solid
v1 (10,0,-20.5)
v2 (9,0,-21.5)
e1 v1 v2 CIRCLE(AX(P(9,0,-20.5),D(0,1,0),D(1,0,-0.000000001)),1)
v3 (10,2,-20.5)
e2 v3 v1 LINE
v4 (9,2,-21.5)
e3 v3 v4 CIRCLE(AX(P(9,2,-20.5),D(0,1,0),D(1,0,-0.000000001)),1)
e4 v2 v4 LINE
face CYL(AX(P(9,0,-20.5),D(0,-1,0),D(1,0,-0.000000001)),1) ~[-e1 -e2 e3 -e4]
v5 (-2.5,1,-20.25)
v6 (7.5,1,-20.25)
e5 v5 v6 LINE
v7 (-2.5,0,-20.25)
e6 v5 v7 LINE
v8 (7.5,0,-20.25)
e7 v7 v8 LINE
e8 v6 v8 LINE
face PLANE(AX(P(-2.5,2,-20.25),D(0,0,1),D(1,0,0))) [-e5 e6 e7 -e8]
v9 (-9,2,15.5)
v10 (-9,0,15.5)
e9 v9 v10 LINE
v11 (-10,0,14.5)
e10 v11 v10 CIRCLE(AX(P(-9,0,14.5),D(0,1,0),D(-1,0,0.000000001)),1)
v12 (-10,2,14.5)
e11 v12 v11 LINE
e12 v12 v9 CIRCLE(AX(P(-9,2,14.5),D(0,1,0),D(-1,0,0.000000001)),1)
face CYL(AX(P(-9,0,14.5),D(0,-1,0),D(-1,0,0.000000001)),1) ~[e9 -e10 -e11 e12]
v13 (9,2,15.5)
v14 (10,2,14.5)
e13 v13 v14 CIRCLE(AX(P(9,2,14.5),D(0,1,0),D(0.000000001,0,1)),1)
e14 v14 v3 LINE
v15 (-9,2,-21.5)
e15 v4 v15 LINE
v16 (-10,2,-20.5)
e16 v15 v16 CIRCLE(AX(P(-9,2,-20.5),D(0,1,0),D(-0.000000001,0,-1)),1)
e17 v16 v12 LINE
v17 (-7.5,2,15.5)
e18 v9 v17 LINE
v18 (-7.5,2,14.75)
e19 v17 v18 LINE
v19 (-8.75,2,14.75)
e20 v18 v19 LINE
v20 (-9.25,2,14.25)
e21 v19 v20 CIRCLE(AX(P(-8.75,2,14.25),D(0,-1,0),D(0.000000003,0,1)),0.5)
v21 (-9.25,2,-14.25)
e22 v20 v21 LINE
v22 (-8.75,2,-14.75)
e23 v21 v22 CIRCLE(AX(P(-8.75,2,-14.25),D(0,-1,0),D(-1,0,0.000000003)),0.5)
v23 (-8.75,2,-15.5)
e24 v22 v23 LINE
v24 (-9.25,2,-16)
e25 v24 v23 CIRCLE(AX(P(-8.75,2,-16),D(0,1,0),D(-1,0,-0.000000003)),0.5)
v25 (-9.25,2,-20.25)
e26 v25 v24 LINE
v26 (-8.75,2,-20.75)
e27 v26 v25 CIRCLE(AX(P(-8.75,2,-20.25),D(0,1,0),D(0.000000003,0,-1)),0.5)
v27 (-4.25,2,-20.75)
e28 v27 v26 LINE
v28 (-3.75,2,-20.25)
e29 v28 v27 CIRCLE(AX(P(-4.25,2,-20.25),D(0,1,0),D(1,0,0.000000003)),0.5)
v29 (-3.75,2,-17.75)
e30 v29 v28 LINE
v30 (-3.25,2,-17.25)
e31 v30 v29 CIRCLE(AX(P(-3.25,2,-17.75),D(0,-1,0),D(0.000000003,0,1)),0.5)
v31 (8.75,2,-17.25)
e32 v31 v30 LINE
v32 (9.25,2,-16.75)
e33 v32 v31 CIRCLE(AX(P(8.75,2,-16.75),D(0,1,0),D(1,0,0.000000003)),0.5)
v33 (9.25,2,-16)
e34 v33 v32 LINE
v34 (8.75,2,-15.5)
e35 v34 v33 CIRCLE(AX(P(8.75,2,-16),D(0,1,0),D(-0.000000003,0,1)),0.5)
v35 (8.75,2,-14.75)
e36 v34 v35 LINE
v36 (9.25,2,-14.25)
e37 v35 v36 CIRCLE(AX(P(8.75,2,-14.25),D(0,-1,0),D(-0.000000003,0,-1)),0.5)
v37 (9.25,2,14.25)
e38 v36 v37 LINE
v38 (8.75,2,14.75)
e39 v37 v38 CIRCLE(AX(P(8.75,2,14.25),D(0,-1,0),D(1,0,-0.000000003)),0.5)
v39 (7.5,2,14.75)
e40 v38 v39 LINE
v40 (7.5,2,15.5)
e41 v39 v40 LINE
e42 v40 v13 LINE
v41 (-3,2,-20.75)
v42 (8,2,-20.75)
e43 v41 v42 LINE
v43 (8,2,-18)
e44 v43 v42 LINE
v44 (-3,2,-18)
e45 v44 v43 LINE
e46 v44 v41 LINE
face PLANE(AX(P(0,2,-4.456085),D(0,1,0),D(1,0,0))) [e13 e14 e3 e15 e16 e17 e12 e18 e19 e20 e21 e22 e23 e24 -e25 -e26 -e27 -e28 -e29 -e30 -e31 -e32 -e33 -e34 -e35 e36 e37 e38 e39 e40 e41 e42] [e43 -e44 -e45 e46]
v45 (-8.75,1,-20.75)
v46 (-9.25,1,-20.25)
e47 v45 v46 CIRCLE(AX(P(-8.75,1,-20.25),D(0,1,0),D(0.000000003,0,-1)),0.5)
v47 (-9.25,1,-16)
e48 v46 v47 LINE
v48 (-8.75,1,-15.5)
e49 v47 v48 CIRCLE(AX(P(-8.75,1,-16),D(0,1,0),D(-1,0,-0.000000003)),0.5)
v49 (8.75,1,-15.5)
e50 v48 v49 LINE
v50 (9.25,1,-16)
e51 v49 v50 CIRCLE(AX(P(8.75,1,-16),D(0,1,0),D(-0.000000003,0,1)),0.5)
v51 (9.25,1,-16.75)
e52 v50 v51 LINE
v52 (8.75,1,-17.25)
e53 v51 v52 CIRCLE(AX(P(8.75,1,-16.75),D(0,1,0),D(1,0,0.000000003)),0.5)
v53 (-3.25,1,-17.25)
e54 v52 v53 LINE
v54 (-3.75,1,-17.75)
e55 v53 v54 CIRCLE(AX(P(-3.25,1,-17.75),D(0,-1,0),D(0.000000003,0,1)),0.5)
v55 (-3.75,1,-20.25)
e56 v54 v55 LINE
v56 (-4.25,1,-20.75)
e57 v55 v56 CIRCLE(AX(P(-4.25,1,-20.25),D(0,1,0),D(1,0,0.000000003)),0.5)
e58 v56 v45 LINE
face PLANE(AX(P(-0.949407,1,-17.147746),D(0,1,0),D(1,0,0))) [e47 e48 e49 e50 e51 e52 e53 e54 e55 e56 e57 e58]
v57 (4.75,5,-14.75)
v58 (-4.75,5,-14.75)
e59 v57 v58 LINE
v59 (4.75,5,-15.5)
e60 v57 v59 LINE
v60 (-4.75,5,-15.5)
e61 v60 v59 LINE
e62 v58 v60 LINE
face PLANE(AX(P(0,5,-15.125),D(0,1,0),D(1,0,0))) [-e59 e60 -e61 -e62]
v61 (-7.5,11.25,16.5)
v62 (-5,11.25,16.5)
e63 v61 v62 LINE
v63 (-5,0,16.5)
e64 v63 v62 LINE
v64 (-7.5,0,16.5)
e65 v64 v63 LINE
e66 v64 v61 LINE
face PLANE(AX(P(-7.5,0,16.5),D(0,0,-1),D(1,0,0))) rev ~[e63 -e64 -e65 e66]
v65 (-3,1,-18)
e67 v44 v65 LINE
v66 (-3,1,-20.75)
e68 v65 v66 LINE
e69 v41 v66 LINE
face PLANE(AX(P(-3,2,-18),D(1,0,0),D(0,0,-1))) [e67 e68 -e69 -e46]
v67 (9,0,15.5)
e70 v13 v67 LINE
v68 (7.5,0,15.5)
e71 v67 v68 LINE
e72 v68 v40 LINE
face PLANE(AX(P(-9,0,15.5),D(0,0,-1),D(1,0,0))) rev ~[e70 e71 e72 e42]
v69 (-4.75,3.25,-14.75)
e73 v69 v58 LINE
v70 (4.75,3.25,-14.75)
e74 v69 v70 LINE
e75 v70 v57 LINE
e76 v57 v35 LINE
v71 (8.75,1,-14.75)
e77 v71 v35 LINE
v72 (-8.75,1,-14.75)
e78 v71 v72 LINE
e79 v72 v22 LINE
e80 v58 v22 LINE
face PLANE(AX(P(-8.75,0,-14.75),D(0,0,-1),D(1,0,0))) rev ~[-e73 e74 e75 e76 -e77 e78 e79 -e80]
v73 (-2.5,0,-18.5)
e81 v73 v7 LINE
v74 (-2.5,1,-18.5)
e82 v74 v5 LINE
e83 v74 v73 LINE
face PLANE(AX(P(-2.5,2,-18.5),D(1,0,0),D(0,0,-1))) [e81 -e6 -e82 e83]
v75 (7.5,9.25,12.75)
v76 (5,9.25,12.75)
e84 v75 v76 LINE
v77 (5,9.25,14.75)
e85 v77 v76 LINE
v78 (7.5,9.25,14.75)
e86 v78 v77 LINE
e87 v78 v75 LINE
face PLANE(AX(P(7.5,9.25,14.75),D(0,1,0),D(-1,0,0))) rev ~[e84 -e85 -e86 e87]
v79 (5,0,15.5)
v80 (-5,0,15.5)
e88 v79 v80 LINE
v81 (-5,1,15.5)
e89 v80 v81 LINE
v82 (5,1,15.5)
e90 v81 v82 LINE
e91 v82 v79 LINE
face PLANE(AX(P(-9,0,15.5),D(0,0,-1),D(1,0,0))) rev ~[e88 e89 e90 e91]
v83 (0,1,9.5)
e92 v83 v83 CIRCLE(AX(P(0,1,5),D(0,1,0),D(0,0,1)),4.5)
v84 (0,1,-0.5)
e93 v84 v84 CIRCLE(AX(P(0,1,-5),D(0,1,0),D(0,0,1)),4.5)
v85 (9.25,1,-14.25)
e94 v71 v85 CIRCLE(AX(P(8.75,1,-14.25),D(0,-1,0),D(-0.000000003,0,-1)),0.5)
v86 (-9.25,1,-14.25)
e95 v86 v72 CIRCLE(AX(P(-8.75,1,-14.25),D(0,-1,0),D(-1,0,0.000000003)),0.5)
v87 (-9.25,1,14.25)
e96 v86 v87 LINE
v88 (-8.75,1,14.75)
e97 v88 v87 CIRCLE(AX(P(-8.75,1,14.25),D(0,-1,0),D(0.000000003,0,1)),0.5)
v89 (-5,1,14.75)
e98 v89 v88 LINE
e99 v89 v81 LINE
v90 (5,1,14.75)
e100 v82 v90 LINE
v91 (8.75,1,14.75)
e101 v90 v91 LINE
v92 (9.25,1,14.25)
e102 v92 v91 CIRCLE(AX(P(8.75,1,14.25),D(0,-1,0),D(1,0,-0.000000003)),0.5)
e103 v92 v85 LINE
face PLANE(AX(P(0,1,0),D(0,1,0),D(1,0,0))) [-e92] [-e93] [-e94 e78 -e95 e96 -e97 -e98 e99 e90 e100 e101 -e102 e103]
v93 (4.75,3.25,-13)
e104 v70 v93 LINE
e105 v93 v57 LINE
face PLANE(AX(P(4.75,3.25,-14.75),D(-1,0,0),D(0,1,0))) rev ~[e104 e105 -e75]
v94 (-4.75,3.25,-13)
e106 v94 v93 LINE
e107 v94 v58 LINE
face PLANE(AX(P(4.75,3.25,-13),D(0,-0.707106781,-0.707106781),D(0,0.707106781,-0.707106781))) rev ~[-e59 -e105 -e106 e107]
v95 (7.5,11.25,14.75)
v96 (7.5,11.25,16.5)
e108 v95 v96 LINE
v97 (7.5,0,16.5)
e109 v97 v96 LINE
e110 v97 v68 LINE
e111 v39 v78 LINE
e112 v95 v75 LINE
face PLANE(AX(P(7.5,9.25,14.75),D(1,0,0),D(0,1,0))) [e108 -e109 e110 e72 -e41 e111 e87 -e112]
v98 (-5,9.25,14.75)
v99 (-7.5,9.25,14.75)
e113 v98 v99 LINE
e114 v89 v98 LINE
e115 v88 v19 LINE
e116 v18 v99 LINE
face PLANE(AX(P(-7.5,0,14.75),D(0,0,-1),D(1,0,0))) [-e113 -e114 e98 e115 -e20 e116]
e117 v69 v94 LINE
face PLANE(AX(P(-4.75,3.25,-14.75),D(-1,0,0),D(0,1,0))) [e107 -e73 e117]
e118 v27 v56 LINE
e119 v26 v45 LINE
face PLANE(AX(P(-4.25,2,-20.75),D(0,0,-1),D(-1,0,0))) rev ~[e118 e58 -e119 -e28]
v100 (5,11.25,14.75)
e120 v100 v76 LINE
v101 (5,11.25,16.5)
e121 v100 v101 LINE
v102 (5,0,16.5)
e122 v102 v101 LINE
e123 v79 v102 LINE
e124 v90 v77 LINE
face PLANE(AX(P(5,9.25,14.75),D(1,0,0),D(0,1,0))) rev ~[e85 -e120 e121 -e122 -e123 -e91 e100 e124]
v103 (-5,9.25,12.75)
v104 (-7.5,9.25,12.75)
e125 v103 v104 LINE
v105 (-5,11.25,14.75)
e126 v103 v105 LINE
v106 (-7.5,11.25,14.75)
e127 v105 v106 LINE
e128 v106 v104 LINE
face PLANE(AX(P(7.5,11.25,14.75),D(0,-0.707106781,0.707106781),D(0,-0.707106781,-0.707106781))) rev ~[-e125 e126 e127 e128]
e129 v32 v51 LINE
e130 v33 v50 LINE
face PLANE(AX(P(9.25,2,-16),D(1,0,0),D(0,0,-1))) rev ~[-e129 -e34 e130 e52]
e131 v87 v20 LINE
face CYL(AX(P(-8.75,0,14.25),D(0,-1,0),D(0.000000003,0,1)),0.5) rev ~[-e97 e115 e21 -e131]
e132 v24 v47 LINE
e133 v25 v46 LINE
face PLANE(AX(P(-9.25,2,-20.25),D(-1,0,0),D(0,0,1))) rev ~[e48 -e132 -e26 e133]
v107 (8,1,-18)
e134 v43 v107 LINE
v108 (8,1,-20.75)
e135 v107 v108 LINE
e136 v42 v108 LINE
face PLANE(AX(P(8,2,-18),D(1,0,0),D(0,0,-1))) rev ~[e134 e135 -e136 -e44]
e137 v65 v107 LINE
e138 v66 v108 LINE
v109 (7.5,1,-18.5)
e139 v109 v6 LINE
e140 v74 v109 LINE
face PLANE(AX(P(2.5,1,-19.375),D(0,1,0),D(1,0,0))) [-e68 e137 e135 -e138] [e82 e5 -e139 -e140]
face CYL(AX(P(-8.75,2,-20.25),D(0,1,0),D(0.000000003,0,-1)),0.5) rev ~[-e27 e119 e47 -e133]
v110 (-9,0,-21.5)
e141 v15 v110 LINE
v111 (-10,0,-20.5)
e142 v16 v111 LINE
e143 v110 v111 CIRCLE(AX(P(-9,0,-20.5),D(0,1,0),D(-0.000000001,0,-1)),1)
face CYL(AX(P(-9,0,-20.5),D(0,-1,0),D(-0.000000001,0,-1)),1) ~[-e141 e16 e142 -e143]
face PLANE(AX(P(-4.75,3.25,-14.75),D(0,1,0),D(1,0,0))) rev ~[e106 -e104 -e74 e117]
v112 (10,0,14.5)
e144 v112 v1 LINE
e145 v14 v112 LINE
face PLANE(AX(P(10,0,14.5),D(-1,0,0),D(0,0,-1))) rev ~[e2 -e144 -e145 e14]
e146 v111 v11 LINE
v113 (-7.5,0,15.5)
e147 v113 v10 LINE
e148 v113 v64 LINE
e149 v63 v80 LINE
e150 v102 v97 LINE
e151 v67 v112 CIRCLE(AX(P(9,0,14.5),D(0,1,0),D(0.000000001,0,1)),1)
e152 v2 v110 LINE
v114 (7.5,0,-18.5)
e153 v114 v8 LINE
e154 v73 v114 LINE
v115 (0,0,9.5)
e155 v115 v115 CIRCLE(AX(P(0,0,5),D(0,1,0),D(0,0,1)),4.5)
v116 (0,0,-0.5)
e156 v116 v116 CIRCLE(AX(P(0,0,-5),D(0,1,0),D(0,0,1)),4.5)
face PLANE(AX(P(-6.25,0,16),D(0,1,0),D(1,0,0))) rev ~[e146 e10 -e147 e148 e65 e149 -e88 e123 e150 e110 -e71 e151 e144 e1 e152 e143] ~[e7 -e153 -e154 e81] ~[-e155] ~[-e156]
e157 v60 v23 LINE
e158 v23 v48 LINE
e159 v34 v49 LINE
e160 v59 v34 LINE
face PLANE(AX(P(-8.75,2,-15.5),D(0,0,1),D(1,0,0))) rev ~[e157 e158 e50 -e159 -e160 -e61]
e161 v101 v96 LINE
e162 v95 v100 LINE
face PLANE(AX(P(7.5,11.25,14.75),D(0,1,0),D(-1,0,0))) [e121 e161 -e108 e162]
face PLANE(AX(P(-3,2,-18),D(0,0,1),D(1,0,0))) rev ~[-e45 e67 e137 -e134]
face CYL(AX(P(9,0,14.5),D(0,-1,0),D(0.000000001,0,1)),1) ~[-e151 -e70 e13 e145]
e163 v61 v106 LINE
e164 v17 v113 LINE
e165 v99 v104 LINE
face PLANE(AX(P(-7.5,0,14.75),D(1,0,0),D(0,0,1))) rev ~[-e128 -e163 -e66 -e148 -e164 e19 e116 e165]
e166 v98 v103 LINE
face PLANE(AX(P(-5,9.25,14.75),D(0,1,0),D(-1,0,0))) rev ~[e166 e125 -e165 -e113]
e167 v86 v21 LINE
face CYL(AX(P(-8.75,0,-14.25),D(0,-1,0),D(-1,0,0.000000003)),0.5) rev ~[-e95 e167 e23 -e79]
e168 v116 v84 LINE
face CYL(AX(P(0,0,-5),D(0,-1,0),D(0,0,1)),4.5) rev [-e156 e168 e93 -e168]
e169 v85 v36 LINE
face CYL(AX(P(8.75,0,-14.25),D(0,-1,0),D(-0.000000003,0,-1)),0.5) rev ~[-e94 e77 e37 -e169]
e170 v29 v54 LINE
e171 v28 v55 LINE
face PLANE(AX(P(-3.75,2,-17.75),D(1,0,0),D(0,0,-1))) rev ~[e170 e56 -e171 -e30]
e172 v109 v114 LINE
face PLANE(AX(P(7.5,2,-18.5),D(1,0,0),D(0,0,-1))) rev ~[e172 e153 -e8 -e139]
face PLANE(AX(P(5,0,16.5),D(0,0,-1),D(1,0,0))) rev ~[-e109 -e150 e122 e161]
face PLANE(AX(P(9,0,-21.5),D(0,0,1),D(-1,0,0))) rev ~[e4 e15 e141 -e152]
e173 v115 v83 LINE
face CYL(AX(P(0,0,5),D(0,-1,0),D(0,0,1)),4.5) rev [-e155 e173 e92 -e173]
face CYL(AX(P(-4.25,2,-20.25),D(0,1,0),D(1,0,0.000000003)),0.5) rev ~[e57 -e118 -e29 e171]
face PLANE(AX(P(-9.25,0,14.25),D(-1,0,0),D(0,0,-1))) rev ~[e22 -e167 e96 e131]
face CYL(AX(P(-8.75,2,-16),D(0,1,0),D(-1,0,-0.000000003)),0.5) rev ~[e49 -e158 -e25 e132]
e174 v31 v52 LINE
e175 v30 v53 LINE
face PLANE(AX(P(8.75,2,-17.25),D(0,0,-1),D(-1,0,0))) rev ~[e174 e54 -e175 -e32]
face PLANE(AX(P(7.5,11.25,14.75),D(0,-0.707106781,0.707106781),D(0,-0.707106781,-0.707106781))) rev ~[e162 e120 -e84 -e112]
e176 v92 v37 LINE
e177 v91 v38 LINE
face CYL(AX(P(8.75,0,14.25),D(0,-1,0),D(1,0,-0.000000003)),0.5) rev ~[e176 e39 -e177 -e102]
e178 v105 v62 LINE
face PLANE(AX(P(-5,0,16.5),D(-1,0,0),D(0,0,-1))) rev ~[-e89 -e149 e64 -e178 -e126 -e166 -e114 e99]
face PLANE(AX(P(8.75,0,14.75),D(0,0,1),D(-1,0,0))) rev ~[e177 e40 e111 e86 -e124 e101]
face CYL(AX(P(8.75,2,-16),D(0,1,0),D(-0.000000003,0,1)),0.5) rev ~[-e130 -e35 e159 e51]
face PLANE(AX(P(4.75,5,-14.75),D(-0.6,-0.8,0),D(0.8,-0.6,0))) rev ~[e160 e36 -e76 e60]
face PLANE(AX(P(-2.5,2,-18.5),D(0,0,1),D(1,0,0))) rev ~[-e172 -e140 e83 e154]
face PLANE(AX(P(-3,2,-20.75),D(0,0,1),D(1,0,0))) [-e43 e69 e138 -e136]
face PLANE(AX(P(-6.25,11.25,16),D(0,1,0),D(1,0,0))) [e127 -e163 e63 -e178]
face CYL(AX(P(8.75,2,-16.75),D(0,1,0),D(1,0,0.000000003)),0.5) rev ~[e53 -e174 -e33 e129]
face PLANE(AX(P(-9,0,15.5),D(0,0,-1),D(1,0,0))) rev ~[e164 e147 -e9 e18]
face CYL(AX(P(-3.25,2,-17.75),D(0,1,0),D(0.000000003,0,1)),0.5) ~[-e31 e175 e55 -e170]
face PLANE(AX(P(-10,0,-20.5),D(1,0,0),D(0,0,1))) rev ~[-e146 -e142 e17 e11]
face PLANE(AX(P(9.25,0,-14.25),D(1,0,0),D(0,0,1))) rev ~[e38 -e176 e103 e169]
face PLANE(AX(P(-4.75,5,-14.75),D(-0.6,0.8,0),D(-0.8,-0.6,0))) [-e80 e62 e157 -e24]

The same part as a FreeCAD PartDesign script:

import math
import FreeCAD as App
import Part
import Sketcher

V = App.Vector
Q = App.Units.Quantity


def add_polygon(sketch, points):
    """Adds a closed chain of lines whose ends are joined by coincident constraints."""
    first, n = sketch.GeometryCount, len(points)
    for a, b in zip(points, points[1:] + points[:1]):
        sketch.addGeometry(Part.LineSegment(App.Vector(*a, 0), App.Vector(*b, 0)), False)
    for i in range(n):
        sketch.addConstraint(Sketcher.Constraint("Coincident", first + i, 2, first + (i + 1) % n, 1))

doc = App.newDocument("Part")
params = doc.addObject("Spreadsheet::Sheet", "Params")
for row, (alias, value) in enumerate([
    ("sketch1_radius", "1 mm"),
    ("sketch1_radius2", "0.5 mm"),
    ("sketch1_width", "18 mm"),
    ("sketch1_height", "35 mm"),
    ("sketch1_width2", "17.5 mm"),
    ("pad1_length", "1 mm"),
    ("sketch2_diameter", "9 mm"),
    ("sketch2_radius", "0.5 mm"),
    ("sketch2_width", "17.5 mm"),
    ("sketch2_height", "28.5 mm"),
    ("pad2_length", "1 mm"),
    ("sketch3_radius", "1 mm"),
    ("sketch3_radius2", "0.5 mm"),
    ("sketch3_width", "18 mm"),
    ("sketch3_height", "35 mm"),
    ("sketch3_width2", "1.5 mm"),
    ("pad3_length", "2 mm"),
    ("sketch4_width", "17.5 mm"),
    ("sketch4_height", "0.75 mm"),
    ("pad4_length", "5 mm"),
    ("sketch5_width", "9.5 mm"),
    ("sketch5_height", "1.75 mm"),
    ("pad5_length", "1.75 mm"),
    ("sketch6_width", "4 mm"),
    ("sketch6_height", "3 mm"),
    ("pocket1_length", "0.75 mm"),
    ("sketch7_width", "2.5 mm"),
    ("sketch7_height", "1.75 mm"),
    ("pad6_length", "11.25 mm"),
    ("sketch8_height", "2 mm"),
    ("sketch8_width", "2.5 mm"),
    ("pad7_length", "2 mm"),
    ("sketch9_width", "2 mm"),
    ("pocket2_length", "15 mm"),
    ("sketch10_width", "1.75 mm"),
    ("pocket3_length", "9.5 mm"),
    ("sketch11_radius", "0.5 mm"),
    ("sketch11_width", "12 mm"),
    ("sketch11_width2", "11 mm"),
    ("sketch11_width3", "10 mm"),
    ("sketch11_width4", "4.5 mm"),
    ("pocket4_length", "1 mm"),
    ("sketch12_width", "10 mm"),
    ("sketch12_height", "1.75 mm"),
    ("pocket5_length", "2 mm"),
], start=1):
    params.set(f"A{row}", alias)
    params.set(f"B{row}", "=" + value)
    params.setAlias(f"B{row}", alias)

body = doc.addObject("PartDesign::Body", "Body")

# Sketch on XZ plane
sketch1 = doc.addObject("Sketcher::SketchObject", "Sketch")
body.addObject(sketch1)
sketch1.AttachmentSupport = (doc.XZ_Plane, [""])
sketch1.MapMode = "FlatFace"
sketch1.addGeometry([
    Part.LineSegment(V(9, -21.5, 0), V(-9, -21.5, 0)),  # 0
    Part.ArcOfCircle(Part.Circle(V(-9, -20.5, 0), V(0, 0, 1), 1), math.radians(-180), math.radians(-90)),  # 1
    Part.LineSegment(V(-10, -20.5, 0), V(-10, 14.5, 0)),  # 2
    Part.ArcOfCircle(Part.Circle(V(-9, 14.5, 0), V(0, 0, 1), 1), math.radians(90), math.radians(180)),  # 3
    Part.LineSegment(V(-9, 15.5, 0), V(9, 15.5, 0)),  # 4
    Part.ArcOfCircle(Part.Circle(V(9, 14.5, 0), V(0, 0, 1), 1), math.radians(0), math.radians(90)),  # 5
    Part.LineSegment(V(10, 14.5, 0), V(10, -20.5, 0)),  # 6
    Part.ArcOfCircle(Part.Circle(V(9, -20.5, 0), V(0, 0, 1), 1), math.radians(-90), math.radians(0)),  # 7
    Part.ArcOfCircle(Part.Circle(V(8.75, -14.25, 0), V(0, 0, 1), 0.5), math.radians(-90), math.radians(0)),  # 8
    Part.LineSegment(V(9.25, -14.25, 0), V(9.25, 14.25, 0)),  # 9
    Part.ArcOfCircle(Part.Circle(V(8.75, 14.25, 0), V(0, 0, 1), 0.5), math.radians(0), math.radians(90)),  # 10
    Part.LineSegment(V(8.75, 14.75, 0), V(-8.75, 14.75, 0)),  # 11
    Part.ArcOfCircle(Part.Circle(V(-8.75, 14.25, 0), V(0, 0, 1), 0.5), math.radians(90), math.radians(180)),  # 12
    Part.LineSegment(V(-9.25, 14.25, 0), V(-9.25, -14.25, 0)),  # 13
    Part.ArcOfCircle(Part.Circle(V(-8.75, -14.25, 0), V(0, 0, 1), 0.5), math.radians(180), math.radians(270)),  # 14
    Part.LineSegment(V(-8.75, -14.75, 0), V(8.75, -14.75, 0)),  # 15
], False)
sketch1.addConstraint([
    Sketcher.Constraint("Tangent", 0, 2, 1, 2),
    Sketcher.Constraint("Tangent", 1, 1, 2, 1),
    Sketcher.Constraint("Tangent", 2, 2, 3, 2),
    Sketcher.Constraint("Tangent", 3, 1, 4, 1),
    Sketcher.Constraint("Tangent", 4, 2, 5, 2),
    Sketcher.Constraint("Tangent", 5, 1, 6, 1),
    Sketcher.Constraint("Tangent", 6, 2, 7, 2),
    Sketcher.Constraint("Tangent", 7, 1, 0, 1),
    Sketcher.Constraint("Tangent", 8, 2, 9, 1),
    Sketcher.Constraint("Tangent", 9, 2, 10, 1),
    Sketcher.Constraint("Tangent", 10, 2, 11, 1),
    Sketcher.Constraint("Tangent", 11, 2, 12, 1),
    Sketcher.Constraint("Tangent", 12, 2, 13, 1),
    Sketcher.Constraint("Tangent", 13, 2, 14, 1),
    Sketcher.Constraint("Tangent", 14, 2, 15, 1),
    Sketcher.Constraint("Tangent", 15, 2, 8, 1),
    Sketcher.Constraint("Horizontal", 0),
    Sketcher.Constraint("Vertical", 2),
    Sketcher.Constraint("Horizontal", 4),
    Sketcher.Constraint("Vertical", 6),
    Sketcher.Constraint("Vertical", 9),
    Sketcher.Constraint("Horizontal", 11),
    Sketcher.Constraint("Vertical", 13),
    Sketcher.Constraint("Horizontal", 15),
    Sketcher.Constraint("Equal", 1, 3),
    Sketcher.Constraint("Equal", 3, 5),
    Sketcher.Constraint("Equal", 5, 7),
    Sketcher.Constraint("Equal", 8, 10),
    Sketcher.Constraint("Equal", 10, 12),
    Sketcher.Constraint("Equal", 12, 14),
    Sketcher.Constraint("Symmetric", 8, 3, 12, 3, -1, 1),
    Sketcher.Constraint("Radius", 1, Q("1 mm")),
    Sketcher.Constraint("Radius", 8, Q("0.5 mm")),
    Sketcher.Constraint("DistanceX", 0, 2, 0, 1, Q("18 mm")),
    Sketcher.Constraint("DistanceY", 2, 1, 2, 2, Q("35 mm")),
    Sketcher.Constraint("DistanceX", 11, 2, 11, 1, Q("17.5 mm")),
    Sketcher.Constraint("DistanceY", 9, 1, 9, 2, Q("28.5 mm")),
    Sketcher.Constraint("DistanceX", 1, 3, -1, 1, Q("9 mm")),
    Sketcher.Constraint("DistanceY", 1, 3, -1, 1, Q("20.5 mm")),
])
sketch1.setExpression("Constraints[31]", "Params.sketch1_radius")
sketch1.setExpression("Constraints[32]", "Params.sketch1_radius2")
sketch1.setExpression("Constraints[33]", "Params.sketch1_width")
sketch1.setExpression("Constraints[34]", "Params.sketch1_height")
sketch1.setExpression("Constraints[35]", "Params.sketch1_width2")
pad1 = doc.addObject("PartDesign::Pad", "Pad")
body.addObject(pad1)
pad1.Profile = sketch1
pad1.setExpression("Length", "Params.pad1_length")
pad1.Reversed = True

# Sketch on XZ plane
sketch2 = doc.addObject("Sketcher::SketchObject", "Sketch001")
body.addObject(sketch2)
sketch2.AttachmentSupport = (doc.XZ_Plane, [""])
sketch2.MapMode = "FlatFace"
sketch2.addGeometry([
    Part.LineSegment(V(-9.25, -14.25, 0), V(-9.25, 14.25, 0)),  # 0
    Part.ArcOfCircle(Part.Circle(V(-8.75, 14.25, 0), V(0, 0, 1), 0.5), math.radians(90), math.radians(180)),  # 1
    Part.LineSegment(V(-8.75, 14.75, 0), V(8.75, 14.75, 0)),  # 2
    Part.ArcOfCircle(Part.Circle(V(8.75, 14.25, 0), V(0, 0, 1), 0.5), math.radians(0), math.radians(90)),  # 3
    Part.LineSegment(V(9.25, 14.25, 0), V(9.25, -14.25, 0)),  # 4
    Part.ArcOfCircle(Part.Circle(V(8.75, -14.25, 0), V(0, 0, 1), 0.5), math.radians(-90), math.radians(0)),  # 5
    Part.LineSegment(V(8.75, -14.75, 0), V(-8.75, -14.75, 0)),  # 6
    Part.ArcOfCircle(Part.Circle(V(-8.75, -14.25, 0), V(0, 0, 1), 0.5), math.radians(180), math.radians(270)),  # 7
    Part.Circle(V(0, 5, 0), V(0, 0, 1), 4.5),  # 8
    Part.Circle(V(0, -5, 0), V(0, 0, 1), 4.5),  # 9
], False)
sketch2.addConstraint([
    Sketcher.Constraint("Tangent", 0, 2, 1, 2),
    Sketcher.Constraint("Tangent", 1, 1, 2, 1),
    Sketcher.Constraint("Tangent", 2, 2, 3, 2),
    Sketcher.Constraint("Tangent", 3, 1, 4, 1),
    Sketcher.Constraint("Tangent", 4, 2, 5, 2),
    Sketcher.Constraint("Tangent", 5, 1, 6, 1),
    Sketcher.Constraint("Tangent", 6, 2, 7, 2),
    Sketcher.Constraint("Tangent", 7, 1, 0, 1),
    Sketcher.Constraint("Vertical", 0),
    Sketcher.Constraint("Horizontal", 2),
    Sketcher.Constraint("Vertical", 4),
    Sketcher.Constraint("Horizontal", 6),
    Sketcher.Constraint("Equal", 1, 3),
    Sketcher.Constraint("Equal", 3, 5),
    Sketcher.Constraint("Equal", 5, 7),
    Sketcher.Constraint("Equal", 8, 9),
    Sketcher.Constraint("Symmetric", 1, 3, 5, 3, -1, 1),
    Sketcher.Constraint("Symmetric", 8, 3, 9, 3, -1, 1),
    Sketcher.Constraint("PointOnObject", 8, 3, -2),
    Sketcher.Constraint("Diameter", 8, Q("9 mm")),
    Sketcher.Constraint("Radius", 1, Q("0.5 mm")),
    Sketcher.Constraint("DistanceX", 2, 1, 2, 2, Q("17.5 mm")),
    Sketcher.Constraint("DistanceY", 0, 1, 0, 2, Q("28.5 mm")),
    Sketcher.Constraint("DistanceY", -1, 1, 8, 3, Q("5 mm")),
])
sketch2.setExpression("Constraints[19]", "Params.sketch2_diameter")
sketch2.setExpression("Constraints[20]", "Params.sketch2_radius")
sketch2.setExpression("Constraints[21]", "Params.sketch2_width")
sketch2.setExpression("Constraints[22]", "Params.sketch2_height")
pad2 = doc.addObject("PartDesign::Pad", "Pad001")
body.addObject(pad2)
pad2.Profile = sketch2
pad2.setExpression("Length", "Params.pad2_length")
pad2.Reversed = True

# Sketch on XZ plane
sketch3 = doc.addObject("Sketcher::SketchObject", "Sketch002")
body.addObject(sketch3)
sketch3.AttachmentSupport = (doc.XZ_Plane, [""])
sketch3.MapMode = "FlatFace"
sketch3.addGeometry([
    Part.LineSegment(V(8.75, -15.5, 0), V(8.75, -14.75, 0)),  # 0
    Part.ArcOfCircle(Part.Circle(V(8.75, -14.25, 0), V(0, 0, 1), 0.5), math.radians(-90), math.radians(0)),  # 1
    Part.LineSegment(V(9.25, -14.25, 0), V(9.25, 14.25, 0)),  # 2
    Part.ArcOfCircle(Part.Circle(V(8.75, 14.25, 0), V(0, 0, 1), 0.5), math.radians(0), math.radians(90)),  # 3
    Part.LineSegment(V(8.75, 14.75, 0), V(7.5, 14.75, 0)),  # 4
    Part.LineSegment(V(7.5, 14.75, 0), V(7.5, 15.5, 0)),  # 5
    Part.LineSegment(V(7.5, 15.5, 0), V(9, 15.5, 0)),  # 6
    Part.ArcOfCircle(Part.Circle(V(9, 14.5, 0), V(0, 0, 1), 1), math.radians(0), math.radians(90)),  # 7
    Part.LineSegment(V(10, 14.5, 0), V(10, -20.5, 0)),  # 8
    Part.ArcOfCircle(Part.Circle(V(9, -20.5, 0), V(0, 0, 1), 1), math.radians(-90), math.radians(0)),  # 9
    Part.LineSegment(V(9, -21.5, 0), V(-9, -21.5, 0)),  # 10
    Part.ArcOfCircle(Part.Circle(V(-9, -20.5, 0), V(0, 0, 1), 1), math.radians(-180), math.radians(-90)),  # 11
    Part.LineSegment(V(-10, -20.5, 0), V(-10, 14.5, 0)),  # 12
    Part.ArcOfCircle(Part.Circle(V(-9, 14.5, 0), V(0, 0, 1), 1), math.radians(90), math.radians(180)),  # 13
    Part.LineSegment(V(-9, 15.5, 0), V(-7.5, 15.5, 0)),  # 14
    Part.LineSegment(V(-7.5, 15.5, 0), V(-7.5, 14.75, 0)),  # 15
    Part.LineSegment(V(-7.5, 14.75, 0), V(-8.75, 14.75, 0)),  # 16
    Part.ArcOfCircle(Part.Circle(V(-8.75, 14.25, 0), V(0, 0, 1), 0.5), math.radians(90), math.radians(180)),  # 17
    Part.LineSegment(V(-9.25, 14.25, 0), V(-9.25, -14.25, 0)),  # 18
    Part.ArcOfCircle(Part.Circle(V(-8.75, -14.25, 0), V(0, 0, 1), 0.5), math.radians(180), math.radians(270)),  # 19
    Part.LineSegment(V(-8.75, -14.75, 0), V(-8.75, -15.5, 0)),  # 20
    Part.LineSegment(V(-8.75, -15.5, 0), V(8.75, -15.5, 0)),  # 21
], False)
sketch3.addConstraint([
    Sketcher.Constraint("Coincident", 0, 2, 1, 1),
    Sketcher.Constraint("Tangent", 1, 2, 2, 1),
    Sketcher.Constraint("Tangent", 2, 2, 3, 1),
    Sketcher.Constraint("Tangent", 3, 2, 4, 1),
    Sketcher.Constraint("Coincident", 4, 2, 5, 1),
    Sketcher.Constraint("Coincident", 5, 2, 6, 1),
    Sketcher.Constraint("Tangent", 6, 2, 7, 2),
    Sketcher.Constraint("Tangent", 7, 1, 8, 1),
    Sketcher.Constraint("Tangent", 8, 2, 9, 2),
    Sketcher.Constraint("Tangent", 9, 1, 10, 1),
    Sketcher.Constraint("Tangent", 10, 2, 11, 2),
    Sketcher.Constraint("Tangent", 11, 1, 12, 1),
    Sketcher.Constraint("Tangent", 12, 2, 13, 2),
    Sketcher.Constraint("Tangent", 13, 1, 14, 1),
    Sketcher.Constraint("Coincident", 14, 2, 15, 1),
    Sketcher.Constraint("Coincident", 15, 2, 16, 1),
    Sketcher.Constraint("Tangent", 16, 2, 17, 1),
    Sketcher.Constraint("Tangent", 17, 2, 18, 1),
    Sketcher.Constraint("Tangent", 18, 2, 19, 1),
    Sketcher.Constraint("Coincident", 19, 2, 20, 1),
    Sketcher.Constraint("Coincident", 20, 2, 21, 1),
    Sketcher.Constraint("Coincident", 21, 2, 0, 1),
    Sketcher.Constraint("Vertical", 0),
    Sketcher.Constraint("Vertical", 2),
    Sketcher.Constraint("Horizontal", 4),
    Sketcher.Constraint("Vertical", 5),
    Sketcher.Constraint("Horizontal", 6),
    Sketcher.Constraint("Vertical", 8),
    Sketcher.Constraint("Horizontal", 10),
    Sketcher.Constraint("Vertical", 12),
    Sketcher.Constraint("Horizontal", 14),
    Sketcher.Constraint("Vertical", 15),
    Sketcher.Constraint("Horizontal", 16),
    Sketcher.Constraint("Vertical", 18),
    Sketcher.Constraint("Vertical", 20),
    Sketcher.Constraint("Horizontal", 21),
    Sketcher.Constraint("Equal", 1, 3),
    Sketcher.Constraint("Equal", 7, 9),
    Sketcher.Constraint("Equal", 9, 11),
    Sketcher.Constraint("Equal", 11, 13),
    Sketcher.Constraint("Equal", 3, 17),
    Sketcher.Constraint("Equal", 17, 19),
    Sketcher.Constraint("Symmetric", 1, 3, 17, 3, -1, 1),
    Sketcher.Constraint("Symmetric", 3, 2, 19, 2, -1, 1),
    Sketcher.Constraint("Symmetric", 7, 3, 13, 3, -2),
    Sketcher.Constraint("Symmetric", 4, 2, 15, 2, -2),
    Sketcher.Constraint("Vertical", 3, 3, 0, 2),
    Sketcher.Constraint("Equal", 0, 5),
    Sketcher.Constraint("Radius", 7, Q("1 mm")),
    Sketcher.Constraint("Radius", 1, Q("0.5 mm")),
    Sketcher.Constraint("DistanceX", 10, 2, 10, 1, Q("18 mm")),
    Sketcher.Constraint("DistanceY", 8, 2, 8, 1, Q("35 mm")),
    Sketcher.Constraint("DistanceX", 6, 1, 6, 2, Q("1.5 mm")),
    Sketcher.Constraint("DistanceX", 21, 1, 21, 2, Q("17.5 mm")),
    Sketcher.Constraint("DistanceY", 2, 1, 2, 2, Q("28.5 mm")),
    Sketcher.Constraint("DistanceY", 11, 3, 20, 2, Q("5 mm")),
])
sketch3.setExpression("Constraints[48]", "Params.sketch3_radius")
sketch3.setExpression("Constraints[49]", "Params.sketch3_radius2")
sketch3.setExpression("Constraints[50]", "Params.sketch3_width")
sketch3.setExpression("Constraints[51]", "Params.sketch3_height")
sketch3.setExpression("Constraints[52]", "Params.sketch3_width2")
pad3 = doc.addObject("PartDesign::Pad", "Pad002")
body.addObject(pad3)
pad3.Profile = sketch3
pad3.setExpression("Length", "Params.pad3_length")
pad3.Reversed = True

# Sketch on XZ plane
sketch4 = doc.addObject("Sketcher::SketchObject", "Sketch003")
body.addObject(sketch4)
sketch4.AttachmentSupport = (doc.XZ_Plane, [""])
sketch4.MapMode = "FlatFace"
add_polygon(sketch4, [(-8.8, -15.5), (-8.8, -14.8), (8.8, -14.8), (8.8, -15.5)])  # lines 0-3
sketch4.addConstraint([
    Sketcher.Constraint("Vertical", 0),
    Sketcher.Constraint("Horizontal", 1),
    Sketcher.Constraint("Vertical", 2),
    Sketcher.Constraint("Horizontal", 3),
    Sketcher.Constraint("DistanceX", 1, 1, 1, 2, Q("17.5 mm")),
    Sketcher.Constraint("DistanceY", 0, 1, 0, 2, Q("0.75 mm")),
    Sketcher.Constraint("DistanceY", 2, 2, -1, 1, Q("15.5 mm")),
    Sketcher.Constraint("DistanceX", 0, 2, -1, 1, Q("8.75 mm")),
])
sketch4.setExpression("Constraints[8]", "Params.sketch4_width")
sketch4.setExpression("Constraints[9]", "Params.sketch4_height")
pad4 = doc.addObject("PartDesign::Pad", "Pad003")
body.addObject(pad4)
pad4.Profile = sketch4
pad4.setExpression("Length", "Params.pad4_length")
pad4.Reversed = True

# Sketch on XY plane
sketch5 = doc.addObject("Sketcher::SketchObject", "Sketch004")
body.addObject(sketch5)
sketch5.AttachmentSupport = (doc.XY_Plane, [""])
sketch5.MapMode = "FlatFace"
sketch5.AttachmentOffset = App.Placement(V(0, 0, -14.75), App.Rotation())
add_polygon(sketch5, [(-4.8, 5), (-4.8, 3.2), (4.8, 3.2), (4.8, 5)])  # lines 0-3
sketch5.addConstraint([
    Sketcher.Constraint("Vertical", 0),
    Sketcher.Constraint("Horizontal", 1),
    Sketcher.Constraint("Vertical", 2),
    Sketcher.Constraint("Horizontal", 3),
    Sketcher.Constraint("DistanceX", 1, 1, 1, 2, Q("9.5 mm")),
    Sketcher.Constraint("DistanceY", -1, 1, 2, 2, Q("5 mm")),
    Sketcher.Constraint("DistanceY", 0, 2, 0, 1, Q("1.75 mm")),
    Sketcher.Constraint("DistanceX", 0, 2, -1, 1, Q("4.75 mm")),
])
sketch5.setExpression("Constraints[8]", "Params.sketch5_width")
sketch5.setExpression("Constraints[10]", "Params.sketch5_height")
pad5 = doc.addObject("PartDesign::Pad", "Pad004")
body.addObject(pad5)
pad5.Profile = sketch5
pad5.setExpression("Length", "Params.pad5_length")

# Sketch on XY plane
sketch6 = doc.addObject("Sketcher::SketchObject", "Sketch005")
body.addObject(sketch6)
sketch6.AttachmentSupport = (doc.XY_Plane, [""])
sketch6.MapMode = "FlatFace"
sketch6.AttachmentOffset = App.Placement(V(0, 0, -14.75), App.Rotation())
add_polygon(sketch6, [(4.8, 5), (8.8, 2), (8.8, 5)])  # lines 0-2
add_polygon(sketch6, [(-8.8, 2), (-4.8, 5), (-8.8, 5)])  # lines 3-5
sketch6.addConstraint([
    Sketcher.Constraint("Vertical", 1),
    Sketcher.Constraint("Horizontal", 2),
    Sketcher.Constraint("Horizontal", 4),
    Sketcher.Constraint("Vertical", 5),
    Sketcher.Constraint("Symmetric", 2, 2, 3, 2, -2),
    Sketcher.Constraint("Symmetric", 0, 2, 5, 2, -2),
    Sketcher.Constraint("DistanceX", 2, 2, 2, 1, Q("4 mm")),
    Sketcher.Constraint("DistanceY", 1, 1, 1, 2, Q("3 mm")),
    Sketcher.Constraint("DistanceY", -1, 1, 0, 2, Q("2 mm")),
    Sketcher.Constraint("DistanceX", 3, 2, 2, 2, Q("9.5 mm")),
])
sketch6.setExpression("Constraints[12]", "Params.sketch6_width")
sketch6.setExpression("Constraints[13]", "Params.sketch6_height")
pocket1 = doc.addObject("PartDesign::Pocket", "Pocket")
body.addObject(pocket1)
pocket1.Profile = sketch6
pocket1.setExpression("Length", "Params.pocket1_length")

# Sketch on XZ plane
sketch7 = doc.addObject("Sketcher::SketchObject", "Sketch006")
body.addObject(sketch7)
sketch7.AttachmentSupport = (doc.XZ_Plane, [""])
sketch7.MapMode = "FlatFace"
add_polygon(sketch7, [(-7.5, 16.5), (-5, 16.5), (-5, 14.8), (-7.5, 14.8)])  # lines 0-3
add_polygon(sketch7, [(5, 16.5), (7.5, 16.5), (7.5, 14.8), (5, 14.8)])  # lines 4-7
sketch7.addConstraint([
    Sketcher.Constraint("Horizontal", 0),
    Sketcher.Constraint("Vertical", 1),
    Sketcher.Constraint("Horizontal", 2),
    Sketcher.Constraint("Vertical", 3),
    Sketcher.Constraint("Horizontal", 4),
    Sketcher.Constraint("Vertical", 5),
    Sketcher.Constraint("Horizontal", 6),
    Sketcher.Constraint("Vertical", 7),
    Sketcher.Constraint("Symmetric", 3, 2, 4, 2, -2),
    Sketcher.Constraint("Symmetric", 1, 2, 6, 2, -2),
    Sketcher.Constraint("DistanceX", 0, 1, 0, 2, Q("2.5 mm")),
    Sketcher.Constraint("DistanceX", 0, 2, -1, 1, Q("5 mm")),
    Sketcher.Constraint("DistanceY", 1, 2, 1, 1, Q("1.75 mm")),
    Sketcher.Constraint("DistanceY", -1, 1, 0, 2, Q("16.5 mm")),
])
sketch7.setExpression("Constraints[18]", "Params.sketch7_width")
sketch7.setExpression("Constraints[20]", "Params.sketch7_height")
pad6 = doc.addObject("PartDesign::Pad", "Pad005")
body.addObject(pad6)
pad6.Profile = sketch7
pad6.setExpression("Length", "Params.pad6_length")
pad6.Reversed = True

# Sketch on XY plane
sketch8 = doc.addObject("Sketcher::SketchObject", "Sketch007")
body.addObject(sketch8)
sketch8.AttachmentSupport = (doc.XY_Plane, [""])
sketch8.MapMode = "FlatFace"
sketch8.AttachmentOffset = App.Placement(V(0, 0, 14.75), App.Rotation())
add_polygon(sketch8, [(7.5, 11.2), (7.5, 9.2), (5, 9.2), (5, 11.2)])  # lines 0-3
add_polygon(sketch8, [(-5, 11.2), (-5, 9.2), (-7.5, 9.2), (-7.5, 11.2)])  # lines 4-7
sketch8.addConstraint([
    Sketcher.Constraint("Vertical", 0),
    Sketcher.Constraint("Horizontal", 1),
    Sketcher.Constraint("Vertical", 2),
    Sketcher.Constraint("Horizontal", 3),
    Sketcher.Constraint("Vertical", 4),
    Sketcher.Constraint("Horizontal", 5),
    Sketcher.Constraint("Vertical", 6),
    Sketcher.Constraint("Horizontal", 7),
    Sketcher.Constraint("Symmetric", 1, 2, 4, 2, -2),
    Sketcher.Constraint("Symmetric", 3, 2, 6, 2, -2),
    Sketcher.Constraint("DistanceY", 0, 2, 0, 1, Q("2 mm")),
    Sketcher.Constraint("DistanceX", 1, 2, 1, 1, Q("2.5 mm")),
    Sketcher.Constraint("DistanceX", -1, 1, 1, 2, Q("5 mm")),
    Sketcher.Constraint("DistanceY", -1, 1, 0, 2, Q("9.25 mm")),
])
sketch8.setExpression("Constraints[18]", "Params.sketch8_height")
sketch8.setExpression("Constraints[19]", "Params.sketch8_width")
pad7 = doc.addObject("PartDesign::Pad", "Pad006")
body.addObject(pad7)
pad7.Profile = sketch8
pad7.setExpression("Length", "Params.pad7_length")
pad7.Reversed = True

# Sketch on YZ plane
sketch9 = doc.addObject("Sketcher::SketchObject", "Sketch008")
body.addObject(sketch9)
sketch9.AttachmentSupport = (doc.YZ_Plane, [""])
sketch9.MapMode = "FlatFace"
sketch9.AttachmentOffset = App.Placement(V(0, 0, 7.5), App.Rotation())
add_polygon(sketch9, [(11.2, 14.8), (9.2, 12.8), (11.2, 12.8)])  # lines 0-2
sketch9.addConstraint([
    Sketcher.Constraint("Horizontal", 1),
    Sketcher.Constraint("Vertical", 2),
    Sketcher.Constraint("Equal", 1, 2),
    Sketcher.Constraint("DistanceX", 1, 1, 1, 2, Q("2 mm")),
    Sketcher.Constraint("DistanceX", -1, 1, 0, 2, Q("9.25 mm")),
    Sketcher.Constraint("DistanceY", -1, 1, 0, 2, Q("12.75 mm")),
])
sketch9.setExpression("Constraints[6]", "Params.sketch9_width")
pocket2 = doc.addObject("PartDesign::Pocket", "Pocket001")
body.addObject(pocket2)
pocket2.Profile = sketch9
pocket2.setExpression("Length", "Params.pocket2_length")

# Sketch on YZ plane
sketch10 = doc.addObject("Sketcher::SketchObject", "Sketch009")
body.addObject(sketch10)
sketch10.AttachmentSupport = (doc.YZ_Plane, [""])
sketch10.MapMode = "FlatFace"
sketch10.AttachmentOffset = App.Placement(V(0, 0, 4.75), App.Rotation())
add_polygon(sketch10, [(3.2, -13), (5, -14.8), (5, -13)])  # lines 0-2
sketch10.addConstraint([
    Sketcher.Constraint("Vertical", 1),
    Sketcher.Constraint("Horizontal", 2),
    Sketcher.Constraint("Equal", 2, 1),
    Sketcher.Constraint("DistanceX", -1, 1, 0, 2, Q("5 mm")),
    Sketcher.Constraint("DistanceY", 1, 2, -1, 1, Q("13 mm")),
    Sketcher.Constraint("DistanceX", 2, 2, 2, 1, Q("1.75 mm")),
])
sketch10.setExpression("Constraints[8]", "Params.sketch10_width")
pocket3 = doc.addObject("PartDesign::Pocket", "Pocket002")
body.addObject(pocket3)
pocket3.Profile = sketch10
pocket3.setExpression("Length", "Params.pocket3_length")

# Sketch on XZ plane
sketch11 = doc.addObject("Sketcher::SketchObject", "Sketch010")
body.addObject(sketch11)
sketch11.AttachmentSupport = (doc.XZ_Plane, [""])
sketch11.MapMode = "FlatFace"
sketch11.AttachmentOffset = App.Placement(V(0, 0, -2), App.Rotation())
sketch11.addGeometry(Part.LineSegment(V(9.25, -16, 0), V(9.25, -16.75, 0)), False)  # 0
sketch11.addGeometry(Part.ArcOfCircle(Part.Circle(V(8.75, -16.75, 0), V(0, 0, 1), 0.5), math.radians(-90), math.radians(0)), False)  # 1
sketch11.addGeometry(Part.LineSegment(V(8.75, -17.25, 0), V(-3.25, -17.25, 0)), False)  # 2
sketch11.addGeometry(Part.ArcOfCircle(Part.Circle(V(-3.25, -17.75, 0), V(0, 0, 1), 0.5), math.radians(90), math.radians(180)), False)  # 3
sketch11.addGeometry(Part.LineSegment(V(-3.75, -17.75, 0), V(-3.75, -20.25, 0)), False)  # 4
sketch11.addGeometry(Part.ArcOfCircle(Part.Circle(V(-4.25, -20.25, 0), V(0, 0, 1), 0.5), math.radians(-90), math.radians(0)), False)  # 5
sketch11.addGeometry(Part.LineSegment(V(-4.25, -20.75, 0), V(-8.75, -20.75, 0)), False)  # 6
sketch11.addGeometry(Part.ArcOfCircle(Part.Circle(V(-8.75, -20.25, 0), V(0, 0, 1), 0.5), math.radians(180), math.radians(270)), False)  # 7
sketch11.addGeometry(Part.LineSegment(V(-9.25, -20.25, 0), V(-9.25, -16, 0)), False)  # 8
sketch11.addGeometry(Part.ArcOfCircle(Part.Circle(V(-8.75, -16, 0), V(0, 0, 1), 0.5), math.radians(90), math.radians(180)), False)  # 9
sketch11.addGeometry(Part.LineSegment(V(-8.75, -15.5, 0), V(8.75, -15.5, 0)), False)  # 10
sketch11.addGeometry(Part.ArcOfCircle(Part.Circle(V(8.75, -16, 0), V(0, 0, 1), 0.5), math.radians(0), math.radians(90)), False)  # 11
add_polygon(sketch11, [(-3, -20.75), (-3, -18), (8, -18), (8, -20.75)])  # lines 12-15
add_polygon(sketch11, [(7.5, -18.5), (-2.5, -18.5), (-2.5, -20.25), (7.5, -20.25)])  # lines 16-19
sketch11.addConstraint([
    Sketcher.Constraint("Tangent", 0, 2, 1, 2),
    Sketcher.Constraint("Tangent", 1, 1, 2, 1),
    Sketcher.Constraint("Tangent", 2, 2, 3, 1),
    Sketcher.Constraint("Tangent", 3, 2, 4, 1),
    Sketcher.Constraint("Tangent", 4, 2, 5, 2),
    Sketcher.Constraint("Tangent", 5, 1, 6, 1),
    Sketcher.Constraint("Tangent", 6, 2, 7, 2),
    Sketcher.Constraint("Tangent", 7, 1, 8, 1),
    Sketcher.Constraint("Tangent", 8, 2, 9, 2),
    Sketcher.Constraint("Tangent", 9, 1, 10, 1),
    Sketcher.Constraint("Tangent", 10, 2, 11, 2),
    Sketcher.Constraint("Tangent", 11, 1, 0, 1),
    Sketcher.Constraint("Vertical", 0),
    Sketcher.Constraint("Horizontal", 2),
    Sketcher.Constraint("Vertical", 4),
    Sketcher.Constraint("Horizontal", 6),
    Sketcher.Constraint("Vertical", 8),
    Sketcher.Constraint("Horizontal", 10),
    Sketcher.Constraint("Vertical", 12),
    Sketcher.Constraint("Horizontal", 13),
    Sketcher.Constraint("Vertical", 14),
    Sketcher.Constraint("Horizontal", 15),
    Sketcher.Constraint("Horizontal", 16),
    Sketcher.Constraint("Vertical", 17),
    Sketcher.Constraint("Horizontal", 18),
    Sketcher.Constraint("Vertical", 19),
    Sketcher.Constraint("Equal", 1, 3),
    Sketcher.Constraint("Equal", 3, 5),
    Sketcher.Constraint("Equal", 5, 7),
    Sketcher.Constraint("Equal", 7, 9),
    Sketcher.Constraint("Equal", 9, 11),
    Sketcher.Constraint("Horizontal", 6, 2, 14, 2),
    Sketcher.Constraint("Horizontal", 7, 1, 17, 2),
    Sketcher.Constraint("Radius", 1, Q("0.5 mm")),
    Sketcher.Constraint("DistanceX", 2, 2, 2, 1, Q("12 mm")),
    Sketcher.Constraint("DistanceX", 13, 1, 13, 2, Q("11 mm")),
    Sketcher.Constraint("DistanceX", 16, 2, 16, 1, Q("10 mm")),
    Sketcher.Constraint("DistanceX", 6, 2, 6, 1, Q("4.5 mm")),
    Sketcher.Constraint("DistanceY", 4, 2, 4, 1, Q("2.5 mm")),
    Sketcher.Constraint("DistanceY", 9, 3, -1, 1, Q("16 mm")),
    Sketcher.Constraint("DistanceX", 12, 2, -1, 1, Q("3 mm")),
    Sketcher.Constraint("DistanceY", 12, 2, -1, 1, Q("18 mm")),
    Sketcher.Constraint("DistanceY", 0, 2, 0, 1, Q("0.75 mm")),
    Sketcher.Constraint("DistanceY", 17, 2, 17, 1, Q("1.75 mm")),
    Sketcher.Constraint("DistanceX", 16, 2, -1, 1, Q("2.5 mm")),
    Sketcher.Constraint("DistanceX", -1, 1, 1, 3, Q("8.75 mm")),
])
sketch11.setExpression("Constraints[41]", "Params.sketch11_radius")
sketch11.setExpression("Constraints[42]", "Params.sketch11_width")
sketch11.setExpression("Constraints[43]", "Params.sketch11_width2")
sketch11.setExpression("Constraints[44]", "Params.sketch11_width3")
sketch11.setExpression("Constraints[45]", "Params.sketch11_width4")
pocket4 = doc.addObject("PartDesign::Pocket", "Pocket003")
body.addObject(pocket4)
pocket4.Profile = sketch11
pocket4.setExpression("Length", "Params.pocket4_length")
pocket4.Reversed = True

# Sketch on XZ plane
sketch12 = doc.addObject("Sketcher::SketchObject", "Sketch011")
body.addObject(sketch12)
sketch12.AttachmentSupport = (doc.XZ_Plane, [""])
sketch12.MapMode = "FlatFace"
sketch12.AttachmentOffset = App.Placement(V(0, 0, -2), App.Rotation())
add_polygon(sketch12, [(-2.5, -20.2), (-2.5, -18.5), (7.5, -18.5), (7.5, -20.2)])  # lines 0-3
sketch12.addConstraint([
    Sketcher.Constraint("Vertical", 0),
    Sketcher.Constraint("Horizontal", 1),
    Sketcher.Constraint("Vertical", 2),
    Sketcher.Constraint("Horizontal", 3),
    Sketcher.Constraint("DistanceX", 1, 1, 1, 2, Q("10 mm")),
    Sketcher.Constraint("DistanceY", 0, 1, 0, 2, Q("1.75 mm")),
    Sketcher.Constraint("DistanceX", 0, 2, -1, 1, Q("2.5 mm")),
    Sketcher.Constraint("DistanceY", 0, 2, -1, 1, Q("18.5 mm")),
])
sketch12.setExpression("Constraints[8]", "Params.sketch12_width")
sketch12.setExpression("Constraints[9]", "Params.sketch12_height")
pocket5 = doc.addObject("PartDesign::Pocket", "Pocket004")
body.addObject(pocket5)
pocket5.Profile = sketch12
pocket5.setExpression("Length", "Params.pocket5_length")
pocket5.Reversed = True

doc.recompute()
